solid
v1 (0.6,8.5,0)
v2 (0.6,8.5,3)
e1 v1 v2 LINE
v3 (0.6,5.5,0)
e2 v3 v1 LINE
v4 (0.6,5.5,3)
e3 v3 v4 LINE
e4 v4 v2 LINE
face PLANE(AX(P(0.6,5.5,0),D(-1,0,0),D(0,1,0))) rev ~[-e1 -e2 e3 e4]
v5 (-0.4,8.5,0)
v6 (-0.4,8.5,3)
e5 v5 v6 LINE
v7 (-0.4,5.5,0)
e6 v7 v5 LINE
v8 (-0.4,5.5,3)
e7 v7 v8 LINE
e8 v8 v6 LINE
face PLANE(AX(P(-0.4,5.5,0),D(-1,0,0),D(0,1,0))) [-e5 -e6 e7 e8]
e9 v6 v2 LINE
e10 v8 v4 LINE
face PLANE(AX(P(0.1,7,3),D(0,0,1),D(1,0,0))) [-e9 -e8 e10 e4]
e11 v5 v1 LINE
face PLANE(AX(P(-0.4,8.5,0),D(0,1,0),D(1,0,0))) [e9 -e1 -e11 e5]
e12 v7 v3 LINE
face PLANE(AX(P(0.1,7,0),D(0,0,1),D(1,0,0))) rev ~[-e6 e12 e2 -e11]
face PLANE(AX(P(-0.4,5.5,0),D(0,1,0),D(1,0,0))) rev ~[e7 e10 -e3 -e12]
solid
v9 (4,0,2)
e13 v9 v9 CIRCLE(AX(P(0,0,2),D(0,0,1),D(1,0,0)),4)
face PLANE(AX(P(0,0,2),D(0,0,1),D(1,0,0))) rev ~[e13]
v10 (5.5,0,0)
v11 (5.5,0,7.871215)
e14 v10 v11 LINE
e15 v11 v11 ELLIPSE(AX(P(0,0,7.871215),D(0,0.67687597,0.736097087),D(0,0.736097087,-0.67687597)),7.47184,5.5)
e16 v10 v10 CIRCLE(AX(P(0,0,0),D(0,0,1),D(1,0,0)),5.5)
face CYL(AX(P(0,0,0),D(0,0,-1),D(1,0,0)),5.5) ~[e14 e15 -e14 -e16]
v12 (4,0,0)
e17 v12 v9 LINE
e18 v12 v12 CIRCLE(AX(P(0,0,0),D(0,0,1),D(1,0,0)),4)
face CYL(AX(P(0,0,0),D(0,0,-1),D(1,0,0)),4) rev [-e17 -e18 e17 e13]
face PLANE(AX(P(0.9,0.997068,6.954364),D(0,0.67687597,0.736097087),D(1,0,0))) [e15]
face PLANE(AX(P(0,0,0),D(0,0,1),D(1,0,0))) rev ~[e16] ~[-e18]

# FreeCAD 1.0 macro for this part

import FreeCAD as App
import Part
import Sketcher

V = App.Vector

doc = App.newDocument("Part")
body = doc.addObject("PartDesign::Body", "Body")

sketch1 = body.newObject("Sketcher::SketchObject", "Sketch")
sketch1.AttachmentSupport = (doc.getObject("XY_Plane"), [""])
sketch1.MapMode = "FlatFace"
sketch1.addGeometry(Part.LineSegment(V(-0.4, 8.5, 0), V(-0.4, 5.5, 0)), False)
sketch1.addGeometry(Part.LineSegment(V(-0.4, 5.5, 0), V(0.6, 5.5, 0)), False)
sketch1.addGeometry(Part.LineSegment(V(0.6, 5.5, 0), V(0.6, 8.5, 0)), False)
sketch1.addGeometry(Part.LineSegment(V(0.6, 8.5, 0), V(-0.4, 8.5, 0)), False)
sketch1.addConstraint(Sketcher.Constraint("Coincident", 0, 2, 1, 1))
sketch1.addConstraint(Sketcher.Constraint("Coincident", 1, 2, 2, 1))
sketch1.addConstraint(Sketcher.Constraint("Coincident", 2, 2, 3, 1))
sketch1.addConstraint(Sketcher.Constraint("Coincident", 3, 2, 0, 1))
sketch1.addConstraint(Sketcher.Constraint("Vertical", 0))
sketch1.addConstraint(Sketcher.Constraint("Horizontal", 1))
sketch1.addConstraint(Sketcher.Constraint("Vertical", 2))
sketch1.addConstraint(Sketcher.Constraint("Horizontal", 3))
sketch1.addConstraint(Sketcher.Constraint("DistanceX", 1, 1, 1, 2, 1.0))
sketch1.addConstraint(Sketcher.Constraint("DistanceY", 0, 2, 0, 1, 3.0))
sketch1.addConstraint(Sketcher.Constraint("DistanceX", 0, 2, -1, 1, 0.4))
sketch1.addConstraint(Sketcher.Constraint("DistanceY", -1, 1, 0, 2, 5.5))
pad1 = body.newObject("PartDesign::Pad", "Pad")
pad1.Profile = sketch1
pad1.Length = 3
body2 = doc.addObject("PartDesign::Body", "Body001")

sketch2 = body2.newObject("Sketcher::SketchObject", "Sketch001")
sketch2.AttachmentSupport = (doc.getObject("XY_Plane001"), [""])
sketch2.MapMode = "FlatFace"
sketch2.addGeometry(Part.LineSegment(V(0, 22, 0), V(0, 0, 0)), False)
sketch2.addGeometry(Part.LineSegment(V(0, 0, 0), V(16, 0, 0)), False)
sketch2.addGeometry(Part.LineSegment(V(16, 0, 0), V(16, 22, 0)), False)
sketch2.addGeometry(Part.LineSegment(V(16, 22, 0), V(0, 22, 0)), False)
sketch2.addConstraint(Sketcher.Constraint("Coincident", 0, 2, 1, 1))
sketch2.addConstraint(Sketcher.Constraint("Coincident", 1, 2, 2, 1))
sketch2.addConstraint(Sketcher.Constraint("Coincident", 2, 2, 3, 1))
sketch2.addConstraint(Sketcher.Constraint("Coincident", 3, 2, 0, 1))
sketch2.addConstraint(Sketcher.Constraint("Vertical", 0))
sketch2.addConstraint(Sketcher.Constraint("Horizontal", 1))
sketch2.addConstraint(Sketcher.Constraint("Vertical", 2))
sketch2.addConstraint(Sketcher.Constraint("Horizontal", 3))
sketch2.addConstraint(Sketcher.Constraint("Coincident", 0, 2, -1, 1))
sketch2.addConstraint(Sketcher.Constraint("DistanceX", 1, 1, 1, 2, 16.0))
sketch2.addConstraint(Sketcher.Constraint("DistanceY", 0, 2, 0, 1, 22.0))
pad2 = body2.newObject("PartDesign::Pad", "Pad001")
pad2.Profile = sketch2
pad2.Length = 13
body3 = doc.addObject("PartDesign::Body", "Body002")
doc.recompute()

body2.Placement = App.Placement(V(-7.1, -7.1, 14.4), App.Rotation(V(-1, 0, 0), 42.6))
boolean = body3.newObject("PartDesign::Boolean", "Boolean")
boolean.Type = "Fuse"
boolean.addObjects([body2])
body4 = doc.addObject("PartDesign::Body", "Body003")

sketch3 = body4.newObject("Sketcher::SketchObject", "Sketch002")
sketch3.AttachmentSupport = (doc.getObject("XY_Plane003"), [""])
sketch3.MapMode = "FlatFace"
sketch3.AttachmentOffset = App.Placement(V(0, 0, 2), App.Rotation())
sketch3.addGeometry(Part.Circle(V(0, 0, 0), V(0, 0, 1), 4), False)
sketch3.addConstraint(Sketcher.Constraint("Coincident", 0, 3, -1, 1))
sketch3.addConstraint(Sketcher.Constraint("Diameter", 0, 8.0))
pad3 = body4.newObject("PartDesign::Pad", "Pad002")
pad3.Profile = sketch3
pad3.Length = 15
doc.recompute()

boolean2 = body4.newObject("PartDesign::Boolean", "Boolean001")
boolean2.Type = "Cut"
boolean2.addObjects([body3])
body5 = doc.addObject("PartDesign::Body", "Body004")

sketch4 = body5.newObject("Sketcher::SketchObject", "Sketch003")
sketch4.AttachmentSupport = (doc.getObject("XY_Plane004"), [""])
sketch4.MapMode = "FlatFace"
sketch4.addGeometry(Part.LineSegment(V(0, 22, 0), V(0, 0, 0)), False)
sketch4.addGeometry(Part.LineSegment(V(0, 0, 0), V(16, 0, 0)), False)
sketch4.addGeometry(Part.LineSegment(V(16, 0, 0), V(16, 22, 0)), False)
sketch4.addGeometry(Part.LineSegment(V(16, 22, 0), V(0, 22, 0)), False)
sketch4.addConstraint(Sketcher.Constraint("Coincident", 0, 2, 1, 1))
sketch4.addConstraint(Sketcher.Constraint("Coincident", 1, 2, 2, 1))
sketch4.addConstraint(Sketcher.Constraint("Coincident", 2, 2, 3, 1))
sketch4.addConstraint(Sketcher.Constraint("Coincident", 3, 2, 0, 1))
sketch4.addConstraint(Sketcher.Constraint("Vertical", 0))
sketch4.addConstraint(Sketcher.Constraint("Horizontal", 1))
sketch4.addConstraint(Sketcher.Constraint("Vertical", 2))
sketch4.addConstraint(Sketcher.Constraint("Horizontal", 3))
sketch4.addConstraint(Sketcher.Constraint("Coincident", 0, 2, -1, 1))
sketch4.addConstraint(Sketcher.Constraint("DistanceX", 1, 1, 1, 2, 16.0))
sketch4.addConstraint(Sketcher.Constraint("DistanceY", 0, 2, 0, 1, 22.0))
pad4 = body5.newObject("PartDesign::Pad", "Pad003")
pad4.Profile = sketch4
pad4.Length = 13
body6 = doc.addObject("PartDesign::Body", "Body005")
doc.recompute()

body5.Placement = App.Placement(V(-7.1, -7.1, 14.4), App.Rotation(V(-1, 0, 0), 42.6))
boolean3 = body6.newObject("PartDesign::Boolean", "Boolean002")
boolean3.Type = "Fuse"
boolean3.addObjects([body5])
body7 = doc.addObject("PartDesign::Body", "Body006")

sketch5 = body7.newObject("Sketcher::SketchObject", "Sketch004")
sketch5.AttachmentSupport = (doc.getObject("XY_Plane006"), [""])
sketch5.MapMode = "FlatFace"
sketch5.addGeometry(Part.Circle(V(0, 0, 0), V(0, 0, 1), 4), False)
sketch5.addConstraint(Sketcher.Constraint("Coincident", 0, 3, -1, 1))
sketch5.addConstraint(Sketcher.Constraint("Diameter", 0, 8.0))
pad5 = body7.newObject("PartDesign::Pad", "Pad004")
pad5.Profile = sketch5
pad5.Length = 15
body8 = doc.addObject("PartDesign::Body", "Body007")

sketch6 = body8.newObject("Sketcher::SketchObject", "Sketch005")
sketch6.AttachmentSupport = (doc.getObject("XY_Plane007"), [""])
sketch6.MapMode = "FlatFace"
sketch6.addGeometry(Part.Circle(V(0, 0, 0), V(0, 0, 1), 5.5), False)
sketch6.addConstraint(Sketcher.Constraint("Coincident", 0, 3, -1, 1))
sketch6.addConstraint(Sketcher.Constraint("Diameter", 0, 11.0))
pad6 = body8.newObject("PartDesign::Pad", "Pad005")
pad6.Profile = sketch6
pad6.Length = 13
doc.recompute()

boolean4 = body8.newObject("PartDesign::Boolean", "Boolean003")
boolean4.Type = "Cut"
boolean4.addObjects([body7])
doc.recompute()

boolean5 = body8.newObject("PartDesign::Boolean", "Boolean004")
boolean5.Type = "Cut"
boolean5.addObjects([body6])
doc.recompute()

boolean6 = body8.newObject("PartDesign::Boolean", "Boolean005")
boolean6.Type = "Fuse"
boolean6.addObjects([body4])

doc.recompute()
